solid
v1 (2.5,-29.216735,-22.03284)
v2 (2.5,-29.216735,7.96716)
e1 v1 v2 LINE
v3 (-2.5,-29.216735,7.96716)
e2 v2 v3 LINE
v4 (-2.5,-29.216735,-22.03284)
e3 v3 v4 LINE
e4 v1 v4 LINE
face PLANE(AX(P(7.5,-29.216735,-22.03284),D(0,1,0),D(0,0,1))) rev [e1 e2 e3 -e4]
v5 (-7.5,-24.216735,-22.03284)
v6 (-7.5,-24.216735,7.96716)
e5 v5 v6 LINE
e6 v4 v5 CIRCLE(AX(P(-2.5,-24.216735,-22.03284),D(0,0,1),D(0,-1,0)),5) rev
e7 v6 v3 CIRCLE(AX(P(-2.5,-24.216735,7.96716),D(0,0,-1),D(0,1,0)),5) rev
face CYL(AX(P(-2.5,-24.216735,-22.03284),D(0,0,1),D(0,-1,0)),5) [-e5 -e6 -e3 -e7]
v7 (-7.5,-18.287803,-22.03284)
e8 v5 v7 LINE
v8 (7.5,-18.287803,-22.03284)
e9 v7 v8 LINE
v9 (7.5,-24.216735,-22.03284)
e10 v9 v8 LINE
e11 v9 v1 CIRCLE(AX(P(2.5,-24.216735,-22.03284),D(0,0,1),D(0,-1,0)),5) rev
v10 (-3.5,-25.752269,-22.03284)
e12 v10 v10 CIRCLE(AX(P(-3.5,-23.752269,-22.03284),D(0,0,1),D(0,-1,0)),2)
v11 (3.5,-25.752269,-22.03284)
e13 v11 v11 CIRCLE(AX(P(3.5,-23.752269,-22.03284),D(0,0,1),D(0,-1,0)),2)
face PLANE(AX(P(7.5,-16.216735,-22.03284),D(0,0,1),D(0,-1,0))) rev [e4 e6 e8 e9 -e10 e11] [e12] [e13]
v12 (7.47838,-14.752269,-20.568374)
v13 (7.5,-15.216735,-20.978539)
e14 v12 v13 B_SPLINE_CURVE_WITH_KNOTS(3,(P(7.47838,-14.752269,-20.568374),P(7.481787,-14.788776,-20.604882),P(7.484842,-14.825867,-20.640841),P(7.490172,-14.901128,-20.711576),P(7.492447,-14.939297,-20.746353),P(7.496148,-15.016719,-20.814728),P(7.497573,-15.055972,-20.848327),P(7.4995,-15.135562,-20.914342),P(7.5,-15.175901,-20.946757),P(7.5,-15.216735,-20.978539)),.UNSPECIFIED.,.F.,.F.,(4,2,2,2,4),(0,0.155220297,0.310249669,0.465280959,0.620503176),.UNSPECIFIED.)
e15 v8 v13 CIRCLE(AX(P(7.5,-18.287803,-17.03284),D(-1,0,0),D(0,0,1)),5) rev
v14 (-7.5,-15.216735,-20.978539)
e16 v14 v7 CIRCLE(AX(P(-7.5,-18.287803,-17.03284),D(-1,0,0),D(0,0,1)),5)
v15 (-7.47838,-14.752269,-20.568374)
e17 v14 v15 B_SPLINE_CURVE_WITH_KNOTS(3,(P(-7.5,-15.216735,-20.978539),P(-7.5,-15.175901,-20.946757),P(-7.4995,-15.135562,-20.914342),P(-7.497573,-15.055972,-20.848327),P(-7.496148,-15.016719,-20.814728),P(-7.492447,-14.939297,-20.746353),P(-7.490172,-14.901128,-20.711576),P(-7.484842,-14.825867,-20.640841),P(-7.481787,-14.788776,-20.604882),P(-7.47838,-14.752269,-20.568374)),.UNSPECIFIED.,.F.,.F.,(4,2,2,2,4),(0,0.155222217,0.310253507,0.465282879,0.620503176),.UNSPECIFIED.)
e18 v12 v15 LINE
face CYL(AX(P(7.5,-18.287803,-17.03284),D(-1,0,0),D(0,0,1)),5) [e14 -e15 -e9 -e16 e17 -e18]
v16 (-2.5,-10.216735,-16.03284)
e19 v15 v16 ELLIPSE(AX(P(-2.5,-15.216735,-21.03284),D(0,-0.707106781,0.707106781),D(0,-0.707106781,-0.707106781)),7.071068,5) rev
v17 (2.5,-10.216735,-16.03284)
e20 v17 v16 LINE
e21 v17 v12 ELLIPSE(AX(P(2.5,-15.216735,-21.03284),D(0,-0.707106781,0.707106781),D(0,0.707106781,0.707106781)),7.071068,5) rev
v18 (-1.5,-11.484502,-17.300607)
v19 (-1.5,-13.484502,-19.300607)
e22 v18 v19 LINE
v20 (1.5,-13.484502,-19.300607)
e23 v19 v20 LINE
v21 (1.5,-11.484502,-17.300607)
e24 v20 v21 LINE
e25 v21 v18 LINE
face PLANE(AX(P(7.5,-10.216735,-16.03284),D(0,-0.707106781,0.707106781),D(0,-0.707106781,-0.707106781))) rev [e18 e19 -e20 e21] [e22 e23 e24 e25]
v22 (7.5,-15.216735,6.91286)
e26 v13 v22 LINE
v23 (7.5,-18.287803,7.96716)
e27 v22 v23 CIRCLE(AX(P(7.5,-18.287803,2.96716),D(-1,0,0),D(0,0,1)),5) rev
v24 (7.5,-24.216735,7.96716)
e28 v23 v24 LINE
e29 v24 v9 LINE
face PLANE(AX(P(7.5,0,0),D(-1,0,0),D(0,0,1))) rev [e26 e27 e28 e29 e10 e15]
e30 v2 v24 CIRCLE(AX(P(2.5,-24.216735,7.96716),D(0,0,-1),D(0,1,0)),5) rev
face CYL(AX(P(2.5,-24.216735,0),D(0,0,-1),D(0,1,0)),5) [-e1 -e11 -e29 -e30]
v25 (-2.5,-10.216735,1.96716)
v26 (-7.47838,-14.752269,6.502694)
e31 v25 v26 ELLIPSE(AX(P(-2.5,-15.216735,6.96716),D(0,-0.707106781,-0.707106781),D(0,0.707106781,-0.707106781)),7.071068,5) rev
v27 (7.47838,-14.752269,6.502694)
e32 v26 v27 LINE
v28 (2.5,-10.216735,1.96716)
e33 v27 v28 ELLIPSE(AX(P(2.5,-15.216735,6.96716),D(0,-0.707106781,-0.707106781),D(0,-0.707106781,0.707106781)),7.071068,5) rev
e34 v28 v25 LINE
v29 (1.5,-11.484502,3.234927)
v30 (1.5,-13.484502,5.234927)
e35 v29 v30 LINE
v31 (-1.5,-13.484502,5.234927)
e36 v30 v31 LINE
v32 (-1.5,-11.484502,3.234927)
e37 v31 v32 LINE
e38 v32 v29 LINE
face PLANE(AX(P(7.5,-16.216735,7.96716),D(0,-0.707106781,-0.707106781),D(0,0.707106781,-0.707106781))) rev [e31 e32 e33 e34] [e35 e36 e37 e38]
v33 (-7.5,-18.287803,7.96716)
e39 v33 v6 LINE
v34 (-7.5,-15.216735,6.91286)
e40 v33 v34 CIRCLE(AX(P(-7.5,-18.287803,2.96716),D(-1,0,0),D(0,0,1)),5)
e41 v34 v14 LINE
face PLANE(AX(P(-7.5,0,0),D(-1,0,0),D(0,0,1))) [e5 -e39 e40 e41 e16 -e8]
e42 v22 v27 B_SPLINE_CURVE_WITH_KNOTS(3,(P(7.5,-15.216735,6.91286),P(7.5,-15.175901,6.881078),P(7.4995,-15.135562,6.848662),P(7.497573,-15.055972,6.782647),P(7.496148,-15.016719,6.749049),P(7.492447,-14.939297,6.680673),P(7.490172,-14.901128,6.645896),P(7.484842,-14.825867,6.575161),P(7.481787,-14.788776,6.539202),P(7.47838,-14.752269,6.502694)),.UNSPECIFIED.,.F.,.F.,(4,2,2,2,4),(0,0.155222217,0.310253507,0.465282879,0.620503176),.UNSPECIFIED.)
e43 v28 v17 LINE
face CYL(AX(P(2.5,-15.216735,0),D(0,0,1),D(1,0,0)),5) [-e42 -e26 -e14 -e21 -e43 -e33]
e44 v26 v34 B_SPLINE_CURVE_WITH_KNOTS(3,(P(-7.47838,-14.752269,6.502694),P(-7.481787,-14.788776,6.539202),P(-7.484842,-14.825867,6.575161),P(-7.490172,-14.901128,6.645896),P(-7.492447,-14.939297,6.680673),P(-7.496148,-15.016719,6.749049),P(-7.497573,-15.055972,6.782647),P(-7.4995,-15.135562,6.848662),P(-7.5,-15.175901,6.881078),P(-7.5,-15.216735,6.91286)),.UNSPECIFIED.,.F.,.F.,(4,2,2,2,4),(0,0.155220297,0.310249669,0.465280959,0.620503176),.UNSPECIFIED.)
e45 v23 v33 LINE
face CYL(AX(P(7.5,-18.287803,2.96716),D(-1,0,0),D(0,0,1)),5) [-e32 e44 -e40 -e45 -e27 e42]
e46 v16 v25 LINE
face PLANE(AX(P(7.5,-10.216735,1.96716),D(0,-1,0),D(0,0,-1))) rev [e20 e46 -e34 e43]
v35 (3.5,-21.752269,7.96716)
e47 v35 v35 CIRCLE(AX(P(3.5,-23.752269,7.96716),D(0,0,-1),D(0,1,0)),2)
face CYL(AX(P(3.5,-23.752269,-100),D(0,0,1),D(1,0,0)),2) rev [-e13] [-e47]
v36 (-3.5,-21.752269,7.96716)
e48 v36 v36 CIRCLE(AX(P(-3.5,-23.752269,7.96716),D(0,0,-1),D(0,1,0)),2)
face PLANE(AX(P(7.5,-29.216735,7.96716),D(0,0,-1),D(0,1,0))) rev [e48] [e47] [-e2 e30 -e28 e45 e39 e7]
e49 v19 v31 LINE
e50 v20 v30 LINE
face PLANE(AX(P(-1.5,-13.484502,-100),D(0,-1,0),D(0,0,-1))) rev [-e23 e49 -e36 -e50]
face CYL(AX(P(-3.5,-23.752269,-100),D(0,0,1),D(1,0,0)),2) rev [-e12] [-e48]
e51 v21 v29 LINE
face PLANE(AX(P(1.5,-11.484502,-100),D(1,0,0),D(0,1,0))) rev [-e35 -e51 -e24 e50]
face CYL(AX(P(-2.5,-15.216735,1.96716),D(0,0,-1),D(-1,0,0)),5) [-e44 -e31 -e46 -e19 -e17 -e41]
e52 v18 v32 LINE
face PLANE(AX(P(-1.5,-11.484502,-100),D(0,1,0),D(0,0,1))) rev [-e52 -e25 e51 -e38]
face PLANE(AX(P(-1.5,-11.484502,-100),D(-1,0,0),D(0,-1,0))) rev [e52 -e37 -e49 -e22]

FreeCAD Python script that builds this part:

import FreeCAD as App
import Part
import Sketcher

V = App.Vector


def edges_at(feature, points):
    """Names of the edges that pass closest to the given points."""
    edges = feature.Shape.Edges
    near = lambda p: min(range(len(edges)), key=lambda i: edges[i].distToShape(Part.Vertex(*p))[0])
    return sorted({f"Edge{near(p) + 1}" for p in points})

doc = App.newDocument("Part")
body = doc.addObject("PartDesign::Body", "Body")

# Sketch on YZ plane
sketch1 = body.newObject("Sketcher::SketchObject", "Sketch")
sketch1.AttachmentSupport = (doc.getObject("YZ_Plane"), [""])
sketch1.MapMode = "FlatFace"
sketch1.addGeometry(Part.LineSegment(V(-16, 8, 0), V(-29, 8, 0)), False)
sketch1.addGeometry(Part.LineSegment(V(-29, 8, 0), V(-29, -22, 0)), False)
sketch1.addGeometry(Part.LineSegment(V(-29, -22, 0), V(-16, -22, 0)), False)
sketch1.addGeometry(Part.LineSegment(V(-16, -22, 0), V(-10, -16, 0)), False)
sketch1.addGeometry(Part.LineSegment(V(-10, -16, 0), V(-10, 2, 0)), False)
sketch1.addGeometry(Part.LineSegment(V(-10, 2, 0), V(-16, 8, 0)), False)
sketch1.addConstraint(Sketcher.Constraint("Coincident", 0, 2, 1, 1))
sketch1.addConstraint(Sketcher.Constraint("Coincident", 1, 2, 2, 1))
sketch1.addConstraint(Sketcher.Constraint("Coincident", 2, 2, 3, 1))
sketch1.addConstraint(Sketcher.Constraint("Coincident", 3, 2, 4, 1))
sketch1.addConstraint(Sketcher.Constraint("Coincident", 4, 2, 5, 1))
sketch1.addConstraint(Sketcher.Constraint("Coincident", 5, 2, 0, 1))
sketch1.addConstraint(Sketcher.Constraint("Horizontal", 0))
sketch1.addConstraint(Sketcher.Constraint("Vertical", 1))
sketch1.addConstraint(Sketcher.Constraint("Horizontal", 2))
sketch1.addConstraint(Sketcher.Constraint("Vertical", 4))
sketch1.addConstraint(Sketcher.Constraint("Perpendicular", 3, 5))
sketch1.addConstraint(Sketcher.Constraint("Vertical", 2, 2, 5, 2))
sketch1.addConstraint(Sketcher.Constraint("Equal", 3, 5))
sketch1.addConstraint(Sketcher.Constraint("DistanceX", 0, 2, 0, 1, 13.0))
sketch1.addConstraint(Sketcher.Constraint("DistanceY", 1, 2, 1, 1, 30.0))
sketch1.addConstraint(Sketcher.Constraint("DistanceY", 4, 1, 4, 2, 18.0))
sketch1.addConstraint(Sketcher.Constraint("DistanceY", -1, 1, 0, 2, 7.96716))
sketch1.addConstraint(Sketcher.Constraint("DistanceX", 0, 2, -1, 1, 29.216735))
pad1 = body.newObject("PartDesign::Pad", "Pad")
pad1.Profile = sketch1
pad1.Length = 15
pad1.Midplane = True
doc.recompute()

fillet = body.newObject("PartDesign::Fillet", "Fillet")
fillet.Base = (pad1, edges_at(pad1, [(0, -16.217, 7.967), (0, -16.217, -22.033)]))
fillet.Radius = 5

# Sketch on XY plane
sketch2 = body.newObject("Sketcher::SketchObject", "Sketch001")
sketch2.AttachmentSupport = (doc.getObject("XY_Plane"), [""])
sketch2.MapMode = "FlatFace"
sketch2.addGeometry(Part.Circle(V(-3.5, -23.8, 0), V(0, 0, 1), 2), False)
sketch2.addGeometry(Part.Circle(V(3.5, -23.8, 0), V(0, 0, 1), 2), False)
sketch2.addGeometry(Part.LineSegment(V(-1.5, -11.5, 0), V(-1.5, -13.5, 0)), False)
sketch2.addGeometry(Part.LineSegment(V(-1.5, -13.5, 0), V(1.5, -13.5, 0)), False)
sketch2.addGeometry(Part.LineSegment(V(1.5, -13.5, 0), V(1.5, -11.5, 0)), False)
sketch2.addGeometry(Part.LineSegment(V(1.5, -11.5, 0), V(-1.5, -11.5, 0)), False)
sketch2.addConstraint(Sketcher.Constraint("Coincident", 2, 2, 3, 1))
sketch2.addConstraint(Sketcher.Constraint("Coincident", 3, 2, 4, 1))
sketch2.addConstraint(Sketcher.Constraint("Coincident", 4, 2, 5, 1))
sketch2.addConstraint(Sketcher.Constraint("Coincident", 5, 2, 2, 1))
sketch2.addConstraint(Sketcher.Constraint("Vertical", 2))
sketch2.addConstraint(Sketcher.Constraint("Horizontal", 3))
sketch2.addConstraint(Sketcher.Constraint("Vertical", 4))
sketch2.addConstraint(Sketcher.Constraint("Horizontal", 5))
sketch2.addConstraint(Sketcher.Constraint("Equal", 0, 1))
sketch2.addConstraint(Sketcher.Constraint("Symmetric", 0, 3, 1, 3, -2))
sketch2.addConstraint(Sketcher.Constraint("Diameter", 0, 4.0))
sketch2.addConstraint(Sketcher.Constraint("DistanceX", 3, 1, 3, 2, 3.0))
sketch2.addConstraint(Sketcher.Constraint("DistanceY", 2, 2, 2, 1, 2.0))
sketch2.addConstraint(Sketcher.Constraint("DistanceX", 0, 3, 1, 3, 7.0))
sketch2.addConstraint(Sketcher.Constraint("DistanceX", 0, 3, 2, 2, 2.0))
sketch2.addConstraint(Sketcher.Constraint("DistanceY", 2, 2, -1, 1, 13.484502))
sketch2.addConstraint(Sketcher.Constraint("DistanceY", 0, 3, -1, 1, 23.752269))
pocket1 = body.newObject("PartDesign::Pocket", "Pocket")
pocket1.Profile = sketch2
pocket1.Length = 200
pocket1.Midplane = True
doc.recompute()

fillet2 = body.newObject("PartDesign::Fillet", "Fillet001")
fillet2.Base = (pocket1, edges_at(pocket1, [(7.5, -29.217, -7.033), (-7.5, -29.217, -7.033)]))
fillet2.Radius = 5
doc.recompute()

fillet3 = body.newObject("PartDesign::Fillet", "Fillet002")
fillet3.Base = (fillet2, edges_at(fillet2, [(7.5, -10.217, -7.033), (-7.5, -10.217, -7.033)]))
fillet3.Radius = 5

doc.recompute()
